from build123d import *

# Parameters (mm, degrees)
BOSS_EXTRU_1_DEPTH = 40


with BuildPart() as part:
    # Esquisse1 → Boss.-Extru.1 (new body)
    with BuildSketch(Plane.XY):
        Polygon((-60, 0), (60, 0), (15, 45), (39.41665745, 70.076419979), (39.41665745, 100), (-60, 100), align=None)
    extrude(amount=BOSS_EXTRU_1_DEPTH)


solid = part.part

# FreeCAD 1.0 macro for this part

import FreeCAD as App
import Part
import Sketcher
from FreeCAD import Vector
Q = App.Units.Quantity

doc = App.newDocument("Part")
body = doc.addObject("PartDesign::Body", "Body")

# Sketch on XY plane
sketch1 = body.newObject("Sketcher::SketchObject", "Sketch")
sketch1.AttachmentSupport = (doc.getObject("XY_Plane"), [""])
sketch1.MapMode = "FlatFace"
sketch1.addGeometry([
    Part.LineSegment(Vector(-60, 0, 0), Vector(60, 0, 0)),  # 0
    Part.LineSegment(Vector(60, 0, 0), Vector(15, 45, 0)),  # 1
    Part.LineSegment(Vector(15, 45, 0), Vector(39, 70, 0)),  # 2
    Part.LineSegment(Vector(39, 70, 0), Vector(39, 100, 0)),  # 3
    Part.LineSegment(Vector(39, 100, 0), Vector(-60, 100, 0)),  # 4
    Part.LineSegment(Vector(-60, 100, 0), Vector(-60, 0, 0)),  # 5
], False)
sketch1.addConstraint([
    Sketcher.Constraint("Coincident", 0, 2, 1, 1),
    Sketcher.Constraint("Coincident", 1, 2, 2, 1),
    Sketcher.Constraint("Coincident", 2, 2, 3, 1),
    Sketcher.Constraint("Coincident", 3, 2, 4, 1),
    Sketcher.Constraint("Coincident", 4, 2, 5, 1),
    Sketcher.Constraint("Coincident", 5, 2, 0, 1),
    Sketcher.Constraint("Horizontal", 0),
    Sketcher.Constraint("Vertical", 3),
    Sketcher.Constraint("Horizontal", 4),
    Sketcher.Constraint("Vertical", 5),
    Sketcher.Constraint("Symmetric", 0, 2, 5, 2, -1, 1),
    Sketcher.Constraint("DistanceX", 0, 1, 0, 2, 120.0),
    Sketcher.Constraint("DistanceY", 5, 2, 5, 1, 100.0),
    Sketcher.Constraint("Angle", 1, Q("135 deg")),
    Sketcher.Constraint("Distance", 2, 35.0),
    Sketcher.Constraint("DistanceX", -1, 1, 1, 2, 15.0),
    Sketcher.Constraint("DistanceY", 3, 1, 3, 2, 29.92358),
])
pad1 = body.newObject("PartDesign::Pad", "Pad")
pad1.Profile = sketch1
pad1.Length = 40

doc.recompute()
